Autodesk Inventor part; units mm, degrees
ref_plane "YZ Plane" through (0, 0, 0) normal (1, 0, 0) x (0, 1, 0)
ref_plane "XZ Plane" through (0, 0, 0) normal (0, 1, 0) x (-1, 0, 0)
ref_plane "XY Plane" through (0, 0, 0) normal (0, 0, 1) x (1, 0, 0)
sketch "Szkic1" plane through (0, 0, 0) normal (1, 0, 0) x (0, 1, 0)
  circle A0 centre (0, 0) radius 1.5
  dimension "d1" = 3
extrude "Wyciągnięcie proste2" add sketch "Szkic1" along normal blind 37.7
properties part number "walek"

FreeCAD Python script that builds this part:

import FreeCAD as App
import Part
import Sketcher
from FreeCAD import Vector
Q = App.Units.Quantity

doc = App.newDocument("Part")
body = doc.addObject("PartDesign::Body", "Body")

sketch1 = doc.addObject("Sketcher::SketchObject", "Sketch")
body.addObject(sketch1)
sketch1.AttachmentSupport = (doc.YZ_Plane, [""])
sketch1.MapMode = "FlatFace"
sketch1.addGeometry(Part.Circle(Vector(0, 0, 0), Vector(0, 0, 1), 1.5), False)
sketch1.addConstraint([
    Sketcher.Constraint("Coincident", 0, 3, -1, 1),
    Sketcher.Constraint("Diameter", 0, Q("3 mm")),
])
pad1 = doc.addObject("PartDesign::Pad", "Pad")
body.addObject(pad1)
pad1.Profile = sketch1
pad1.Length = 37.7

doc.recompute()
